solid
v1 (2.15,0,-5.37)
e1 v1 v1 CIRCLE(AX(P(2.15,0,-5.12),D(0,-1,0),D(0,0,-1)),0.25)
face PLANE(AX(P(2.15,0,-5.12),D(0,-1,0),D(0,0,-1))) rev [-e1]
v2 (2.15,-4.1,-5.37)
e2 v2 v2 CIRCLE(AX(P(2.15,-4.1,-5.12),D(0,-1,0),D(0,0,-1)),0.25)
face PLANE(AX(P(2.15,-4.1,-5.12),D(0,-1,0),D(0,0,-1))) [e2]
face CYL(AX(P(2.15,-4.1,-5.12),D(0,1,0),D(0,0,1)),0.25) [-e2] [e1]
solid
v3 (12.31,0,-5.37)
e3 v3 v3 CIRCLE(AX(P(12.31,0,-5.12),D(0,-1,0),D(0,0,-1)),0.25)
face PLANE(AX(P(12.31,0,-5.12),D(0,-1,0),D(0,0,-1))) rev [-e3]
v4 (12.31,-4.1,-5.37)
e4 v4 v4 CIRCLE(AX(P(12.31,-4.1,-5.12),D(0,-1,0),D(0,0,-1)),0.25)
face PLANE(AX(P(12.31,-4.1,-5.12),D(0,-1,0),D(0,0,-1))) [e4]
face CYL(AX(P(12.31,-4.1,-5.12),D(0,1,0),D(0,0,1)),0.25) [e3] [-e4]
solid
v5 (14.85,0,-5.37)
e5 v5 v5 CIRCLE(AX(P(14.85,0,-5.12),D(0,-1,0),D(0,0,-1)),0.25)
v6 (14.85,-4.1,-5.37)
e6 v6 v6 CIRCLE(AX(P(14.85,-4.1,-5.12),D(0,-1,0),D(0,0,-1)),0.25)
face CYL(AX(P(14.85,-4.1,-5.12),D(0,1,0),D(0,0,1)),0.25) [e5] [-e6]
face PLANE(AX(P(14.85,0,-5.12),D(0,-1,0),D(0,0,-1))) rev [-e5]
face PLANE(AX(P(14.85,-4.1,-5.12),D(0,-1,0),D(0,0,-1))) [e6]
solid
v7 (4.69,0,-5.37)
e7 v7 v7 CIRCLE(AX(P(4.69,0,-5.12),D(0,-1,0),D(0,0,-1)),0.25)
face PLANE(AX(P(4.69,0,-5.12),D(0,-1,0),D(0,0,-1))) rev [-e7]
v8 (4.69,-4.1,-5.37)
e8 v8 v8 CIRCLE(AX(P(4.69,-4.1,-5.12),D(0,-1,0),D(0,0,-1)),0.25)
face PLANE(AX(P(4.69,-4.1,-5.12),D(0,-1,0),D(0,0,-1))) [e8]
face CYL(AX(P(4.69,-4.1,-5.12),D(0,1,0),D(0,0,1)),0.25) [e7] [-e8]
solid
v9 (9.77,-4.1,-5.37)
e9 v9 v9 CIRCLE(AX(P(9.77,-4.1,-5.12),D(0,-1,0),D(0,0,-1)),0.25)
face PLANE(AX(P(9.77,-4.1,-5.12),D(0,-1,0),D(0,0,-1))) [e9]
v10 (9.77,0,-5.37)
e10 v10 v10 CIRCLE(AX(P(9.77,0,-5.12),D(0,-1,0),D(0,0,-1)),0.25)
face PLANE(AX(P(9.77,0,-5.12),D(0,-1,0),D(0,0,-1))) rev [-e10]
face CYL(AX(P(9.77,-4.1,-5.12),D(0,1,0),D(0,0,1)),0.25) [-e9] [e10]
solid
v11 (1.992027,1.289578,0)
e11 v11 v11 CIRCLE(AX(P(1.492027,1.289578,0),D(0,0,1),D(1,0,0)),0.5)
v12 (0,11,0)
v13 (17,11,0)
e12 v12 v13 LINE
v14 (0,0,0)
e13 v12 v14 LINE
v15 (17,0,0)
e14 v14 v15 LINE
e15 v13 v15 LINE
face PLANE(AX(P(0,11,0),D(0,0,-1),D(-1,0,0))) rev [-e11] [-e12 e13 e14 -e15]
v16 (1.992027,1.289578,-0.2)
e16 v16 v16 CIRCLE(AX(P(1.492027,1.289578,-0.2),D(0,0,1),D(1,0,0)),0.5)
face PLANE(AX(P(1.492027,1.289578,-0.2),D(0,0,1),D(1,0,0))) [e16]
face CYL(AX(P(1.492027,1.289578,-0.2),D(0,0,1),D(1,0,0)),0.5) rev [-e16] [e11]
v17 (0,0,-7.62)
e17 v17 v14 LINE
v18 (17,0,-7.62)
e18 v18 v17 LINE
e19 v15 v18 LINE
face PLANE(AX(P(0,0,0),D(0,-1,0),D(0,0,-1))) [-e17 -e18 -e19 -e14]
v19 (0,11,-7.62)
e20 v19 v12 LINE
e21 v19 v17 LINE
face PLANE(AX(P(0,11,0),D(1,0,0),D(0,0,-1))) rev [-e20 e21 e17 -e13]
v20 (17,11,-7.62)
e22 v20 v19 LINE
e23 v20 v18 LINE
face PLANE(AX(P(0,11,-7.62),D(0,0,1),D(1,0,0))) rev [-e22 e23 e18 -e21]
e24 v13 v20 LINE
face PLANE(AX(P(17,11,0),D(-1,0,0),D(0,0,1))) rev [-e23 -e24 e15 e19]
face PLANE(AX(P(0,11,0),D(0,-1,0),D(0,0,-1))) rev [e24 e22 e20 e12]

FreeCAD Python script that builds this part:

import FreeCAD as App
import Part
import Sketcher
from FreeCAD import Vector


def add_polygon(sketch, points):
    """Adds a closed chain of lines whose ends are joined by coincident constraints."""
    first, n = sketch.GeometryCount, len(points)
    for a, b in zip(points, points[1:] + points[:1]):
        sketch.addGeometry(Part.LineSegment(App.Vector(*a, 0), App.Vector(*b, 0)), False)
    for i in range(n):
        sketch.addConstraint(Sketcher.Constraint("Coincident", first + i, 2, first + (i + 1) % n, 1))

doc = App.newDocument("Part")
body = doc.addObject("PartDesign::Body", "Body")

# Sketch on XZ plane
sketch1 = body.newObject("Sketcher::SketchObject", "Sketch")
sketch1.AttachmentSupport = (doc.getObject("XZ_Plane"), [""])
sketch1.MapMode = "FlatFace"
add_polygon(sketch1, [(0, -8), (0, 0), (17, 0), (17, -8)])  # lines 0-3
sketch1.addConstraint([
    Sketcher.Constraint("Vertical", 0),
    Sketcher.Constraint("Horizontal", 1),
    Sketcher.Constraint("Vertical", 2),
    Sketcher.Constraint("Horizontal", 3),
    Sketcher.Constraint("Coincident", 0, 2, -1, 1),
    Sketcher.Constraint("DistanceX", 1, 1, 1, 2, 17.0),
    Sketcher.Constraint("DistanceY", 0, 1, 0, 2, 7.62),
])
pad1 = body.newObject("PartDesign::Pad", "Pad")
pad1.Profile = sketch1
pad1.Length = 11
pad1.Reversed = True

# Sketch on XY plane
sketch2 = body.newObject("Sketcher::SketchObject", "Sketch001")
sketch2.AttachmentSupport = (doc.getObject("XY_Plane"), [""])
sketch2.MapMode = "FlatFace"
sketch2.addGeometry(Part.Circle(Vector(1.5, 1.3, 0), Vector(0, 0, 1), 0.5), False)
sketch2.addConstraint([
    Sketcher.Constraint("Diameter", 0, 1.0),
    Sketcher.Constraint("DistanceX", -1, 1, 0, 3, 1.492027),
    Sketcher.Constraint("DistanceY", -1, 1, 0, 3, 1.289578),
])
pocket1 = body.newObject("PartDesign::Pocket", "Pocket")
pocket1.Profile = sketch2
pocket1.Length = 0.2
body2 = doc.addObject("PartDesign::Body", "Body001")

# Sketch on XZ plane
sketch3 = body2.newObject("Sketcher::SketchObject", "Sketch002")
sketch3.AttachmentSupport = (doc.getObject("XZ_Plane001"), [""])
sketch3.MapMode = "FlatFace"
sketch3.addGeometry(Part.Circle(Vector(2.15, -5.12, 0), Vector(0, 0, 1), 0.25), False)
sketch3.addConstraint([
    Sketcher.Constraint("Diameter", 0, 0.5),
    Sketcher.Constraint("DistanceX", -1, 1, 0, 3, 2.15),
    Sketcher.Constraint("DistanceY", 0, 3, -1, 1, 5.12),
])
pad2 = body2.newObject("PartDesign::Pad", "Pad001")
pad2.Profile = sketch3
pad2.Length = 4.1
body3 = doc.addObject("PartDesign::Body", "Body002")

# Sketch on XZ plane
sketch4 = body3.newObject("Sketcher::SketchObject", "Sketch003")
sketch4.AttachmentSupport = (doc.getObject("XZ_Plane002"), [""])
sketch4.MapMode = "FlatFace"
sketch4.addGeometry(Part.Circle(Vector(4.69, -5.12, 0), Vector(0, 0, 1), 0.25), False)
sketch4.addConstraint([
    Sketcher.Constraint("Diameter", 0, 0.5),
    Sketcher.Constraint("DistanceX", -1, 1, 0, 3, 4.69),
    Sketcher.Constraint("DistanceY", 0, 3, -1, 1, 5.12),
])
pad3 = body3.newObject("PartDesign::Pad", "Pad002")
pad3.Profile = sketch4
pad3.Length = 4.1
body4 = doc.addObject("PartDesign::Body", "Body003")

# Sketch on XZ plane
sketch5 = body4.newObject("Sketcher::SketchObject", "Sketch004")
sketch5.AttachmentSupport = (doc.getObject("XZ_Plane003"), [""])
sketch5.MapMode = "FlatFace"
sketch5.addGeometry(Part.Circle(Vector(9.77, -5.12, 0), Vector(0, 0, 1), 0.25), False)
sketch5.addConstraint([
    Sketcher.Constraint("Diameter", 0, 0.5),
    Sketcher.Constraint("DistanceX", -1, 1, 0, 3, 9.77),
    Sketcher.Constraint("DistanceY", 0, 3, -1, 1, 5.12),
])
pad4 = body4.newObject("PartDesign::Pad", "Pad003")
pad4.Profile = sketch5
pad4.Length = 4.1
body5 = doc.addObject("PartDesign::Body", "Body004")

# Sketch on XZ plane
sketch6 = body5.newObject("Sketcher::SketchObject", "Sketch005")
sketch6.AttachmentSupport = (doc.getObject("XZ_Plane004"), [""])
sketch6.MapMode = "FlatFace"
sketch6.addGeometry(Part.Circle(Vector(12.31, -5.12, 0), Vector(0, 0, 1), 0.25), False)
sketch6.addConstraint([
    Sketcher.Constraint("Diameter", 0, 0.5),
    Sketcher.Constraint("DistanceX", -1, 1, 0, 3, 12.31),
    Sketcher.Constraint("DistanceY", 0, 3, -1, 1, 5.12),
])
pad5 = body5.newObject("PartDesign::Pad", "Pad004")
pad5.Profile = sketch6
pad5.Length = 4.1
body6 = doc.addObject("PartDesign::Body", "Body005")

# Sketch on XZ plane
sketch7 = body6.newObject("Sketcher::SketchObject", "Sketch006")
sketch7.AttachmentSupport = (doc.getObject("XZ_Plane005"), [""])
sketch7.MapMode = "FlatFace"
sketch7.addGeometry(Part.Circle(Vector(14.85, -5.12, 0), Vector(0, 0, 1), 0.25), False)
sketch7.addConstraint([
    Sketcher.Constraint("Diameter", 0, 0.5),
    Sketcher.Constraint("DistanceX", -1, 1, 0, 3, 14.85),
    Sketcher.Constraint("DistanceY", 0, 3, -1, 1, 5.12),
])
pad6 = body6.newObject("PartDesign::Pad", "Pad005")
pad6.Profile = sketch7
pad6.Length = 4.1

doc.recompute()
